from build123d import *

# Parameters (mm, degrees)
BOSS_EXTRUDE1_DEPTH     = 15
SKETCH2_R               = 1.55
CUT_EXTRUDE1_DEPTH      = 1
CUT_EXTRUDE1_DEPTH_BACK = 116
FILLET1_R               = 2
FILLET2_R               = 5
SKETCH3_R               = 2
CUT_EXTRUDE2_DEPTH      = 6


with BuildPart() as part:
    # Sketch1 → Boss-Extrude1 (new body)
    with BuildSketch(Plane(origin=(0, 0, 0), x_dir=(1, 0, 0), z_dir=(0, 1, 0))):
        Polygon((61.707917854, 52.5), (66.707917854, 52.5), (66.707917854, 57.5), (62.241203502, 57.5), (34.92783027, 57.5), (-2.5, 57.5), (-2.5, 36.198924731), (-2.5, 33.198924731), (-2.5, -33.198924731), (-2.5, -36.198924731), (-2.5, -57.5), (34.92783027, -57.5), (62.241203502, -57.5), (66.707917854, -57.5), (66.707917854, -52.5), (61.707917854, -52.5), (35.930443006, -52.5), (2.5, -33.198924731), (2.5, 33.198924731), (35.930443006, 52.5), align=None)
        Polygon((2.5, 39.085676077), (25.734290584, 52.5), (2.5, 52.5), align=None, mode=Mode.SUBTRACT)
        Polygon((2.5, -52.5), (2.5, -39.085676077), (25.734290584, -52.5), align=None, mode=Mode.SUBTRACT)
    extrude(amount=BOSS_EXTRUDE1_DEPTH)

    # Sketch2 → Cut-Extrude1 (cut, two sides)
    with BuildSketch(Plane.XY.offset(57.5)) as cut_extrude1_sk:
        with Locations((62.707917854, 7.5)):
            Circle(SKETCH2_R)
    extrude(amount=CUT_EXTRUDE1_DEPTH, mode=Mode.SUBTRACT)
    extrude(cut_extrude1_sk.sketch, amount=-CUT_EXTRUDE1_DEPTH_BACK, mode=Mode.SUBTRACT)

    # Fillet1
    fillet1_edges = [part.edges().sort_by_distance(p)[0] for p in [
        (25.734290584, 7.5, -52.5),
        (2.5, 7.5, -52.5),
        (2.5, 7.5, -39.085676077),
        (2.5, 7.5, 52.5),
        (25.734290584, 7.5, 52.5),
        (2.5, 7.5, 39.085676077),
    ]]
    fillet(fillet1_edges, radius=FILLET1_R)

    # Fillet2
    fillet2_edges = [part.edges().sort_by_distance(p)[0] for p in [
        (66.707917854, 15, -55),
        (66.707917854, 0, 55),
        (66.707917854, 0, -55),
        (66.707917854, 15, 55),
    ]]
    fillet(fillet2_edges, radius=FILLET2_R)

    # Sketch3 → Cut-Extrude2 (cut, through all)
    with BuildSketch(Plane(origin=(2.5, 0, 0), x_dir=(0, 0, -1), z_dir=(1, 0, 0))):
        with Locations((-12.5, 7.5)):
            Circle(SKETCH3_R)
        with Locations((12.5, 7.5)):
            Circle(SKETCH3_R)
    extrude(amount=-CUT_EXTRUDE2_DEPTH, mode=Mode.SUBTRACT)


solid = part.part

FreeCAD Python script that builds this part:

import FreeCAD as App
import Part
import Sketcher

V = App.Vector
Q = App.Units.Quantity


def edges_at(feature, points):
    """Names of the edges that pass closest to the given points."""
    edges = feature.Shape.Edges
    near = lambda p: min(range(len(edges)), key=lambda i: edges[i].distToShape(Part.Vertex(*p))[0])
    return sorted({f"Edge{near(p) + 1}" for p in points})


def add_polygon(sketch, points):
    """Adds a closed chain of lines whose ends are joined by coincident constraints."""
    first, n = sketch.GeometryCount, len(points)
    for a, b in zip(points, points[1:] + points[:1]):
        sketch.addGeometry(Part.LineSegment(App.Vector(*a, 0), App.Vector(*b, 0)), False)
    for i in range(n):
        sketch.addConstraint(Sketcher.Constraint("Coincident", first + i, 2, first + (i + 1) % n, 1))

doc = App.newDocument("Part")
params = doc.addObject("Spreadsheet::Sheet", "Params")
for row, (alias, value) in enumerate([
    ("sketch1_height", "5 mm"),
    ("sketch1_height2", "115 mm"),
    ("pad1_length", "15 mm"),
    ("sketch2_diameter", "3.1 mm"),
    ("fillet_radius", "2 mm"),
    ("fillet2_radius", "5 mm"),
    ("sketch3_diameter", "4 mm"),
], start=1):
    params.set(f"A{row}", alias)
    params.set(f"B{row}", "=" + value)
    params.setAlias(f"B{row}", alias)

body = doc.addObject("PartDesign::Body", "Body")

sketch1 = body.newObject("Sketcher::SketchObject", "Sketch")
sketch1.AttachmentSupport = (doc.getObject("XZ_Plane"), [""])
sketch1.MapMode = "FlatFace"
add_polygon(sketch1, [(66.707918, -52.5), (66.707918, -57.5), (-2.5, -57.5), (-2.5, 57.5), (66.707918, 57.5), (66.707918, 52.5), (35.930443, 52.5), (2.5, 33.198925), (2.5, -33.198925), (35.930443, -52.5)])
add_polygon(sketch1, [(25.734291, 52.5), (2.5, 52.5), (2.5, 39.085676)])
add_polygon(sketch1, [(25.734291, -52.5), (2.5, -39.085676), (2.5, -52.5)])
sketch1.addConstraint([
    Sketcher.Constraint("Vertical", 0),
    Sketcher.Constraint("Horizontal", 1),
    Sketcher.Constraint("Vertical", 2),
    Sketcher.Constraint("Horizontal", 3),
    Sketcher.Constraint("Vertical", 4),
    Sketcher.Constraint("Horizontal", 5),
    Sketcher.Constraint("Vertical", 7),
    Sketcher.Constraint("Horizontal", 9),
    Sketcher.Constraint("Horizontal", 10),
    Sketcher.Constraint("Vertical", 11),
    Sketcher.Constraint("Vertical", 14),
    Sketcher.Constraint("Horizontal", 15),
    Sketcher.Constraint("Symmetric", 0, 2, 3, 2, -1),
    Sketcher.Constraint("Symmetric", 5, 2, 8, 2, -1),
    Sketcher.Constraint("Symmetric", 11, 2, 13, 2, -1),
    Sketcher.Constraint("Symmetric", 12, 2, 15, 2, -1),
    Sketcher.Constraint("Parallel", 6, 12),
    Sketcher.Constraint("Parallel", 8, 13),
    Sketcher.Constraint("Horizontal", 5, 2, 10, 2),
    Sketcher.Constraint("Vertical", 7, 2, 10, 2),
    Sketcher.Constraint("DistanceY", 0, 2, 0, 1, 5.0),
    Sketcher.Constraint("DistanceY", 2, 1, 2, 2, 115.0),
    Sketcher.Constraint("Angle", 6, Q("-150 deg")),
    Sketcher.Constraint("DistanceX", 2, 2, 6, 2, 5.0),
    Sketcher.Constraint("DistanceX", 1, 2, -1, 1, 2.5),
    Sketcher.Constraint("DistanceX", 10, 2, 10, 1, 23.234291),
    Sketcher.Constraint("DistanceY", 7, 2, 7, 1, 66.397849),
    Sketcher.Constraint("DistanceX", 1, 2, 1, 1, 69.207918),
])
sketch1.setExpression("Constraints[36]", "Params.sketch1_height")
sketch1.setExpression("Constraints[37]", "Params.sketch1_height2")
pad1 = body.newObject("PartDesign::Pad", "Pad")
pad1.Profile = sketch1
pad1.setExpression("Length", "Params.pad1_length")
pad1.Reversed = True

sketch2 = body.newObject("Sketcher::SketchObject", "Sketch001")
sketch2.AttachmentSupport = (doc.getObject("XY_Plane"), [""])
sketch2.MapMode = "FlatFace"
sketch2.AttachmentOffset = App.Placement(V(0, 0, 57.5), App.Rotation())
sketch2.addGeometry(Part.Circle(V(62.707918, 7.5, 0), V(0, 0, 1), 1.55), False)
sketch2.addConstraint([
    Sketcher.Constraint("Diameter", 0, 3.1),
    Sketcher.Constraint("DistanceY", -1, 1, 0, 3, 7.5),
    Sketcher.Constraint("DistanceX", -1, 1, 0, 3, 62.707918),
])
sketch2.setExpression("Constraints[0]", "Params.sketch2_diameter")
pocket1 = body.newObject("PartDesign::Pocket", "Pocket")
pocket1.Profile = sketch2
pocket1.Type = "ThroughAll"
pocket1.Midplane = True
doc.recompute()

fillet = body.newObject("PartDesign::Fillet", "Fillet")
fillet.Base = (pocket1, edges_at(pocket1, [
    (25.734, 7.5, -52.5),
    (2.5, 7.5, -52.5),
    (2.5, 7.5, -39.086),
    (2.5, 7.5, 52.5),
    (25.734, 7.5, 52.5),
    (2.5, 7.5, 39.086),
]))
fillet.setExpression("Radius", "Params.fillet_radius")
doc.recompute()

fillet2 = body.newObject("PartDesign::Fillet", "Fillet001")
fillet2.Base = (fillet, edges_at(fillet, [
    (66.708, 15, -55),
    (66.708, 0, 55),
    (66.708, 0, -55),
    (66.708, 15, 55),
]))
fillet2.setExpression("Radius", "Params.fillet2_radius")

sketch3 = body.newObject("Sketcher::SketchObject", "Sketch002")
sketch3.AttachmentSupport = (doc.getObject("YZ_Plane"), [""])
sketch3.MapMode = "FlatFace"
sketch3.AttachmentOffset = App.Placement(V(0, 0, 2.5), App.Rotation())
sketch3.addGeometry([
    Part.Circle(V(7.5, 12.5, 0), V(0, 0, 1), 2),
    Part.Circle(V(7.5, -12.5, 0), V(0, 0, 1), 2),
], False)
sketch3.addConstraint([
    Sketcher.Constraint("Equal", 0, 1),
    Sketcher.Constraint("Symmetric", 0, 3, 1, 3, -1),
    Sketcher.Constraint("Diameter", 0, 4.0),
    Sketcher.Constraint("DistanceY", 1, 3, 0, 3, 25.0),
    Sketcher.Constraint("DistanceX", -1, 1, 0, 3, 7.5),
])
sketch3.setExpression("Constraints[2]", "Params.sketch3_diameter")
pocket2 = body.newObject("PartDesign::Pocket", "Pocket001")
pocket2.Profile = sketch3
pocket2.Type = "ThroughAll"

doc.recompute()
